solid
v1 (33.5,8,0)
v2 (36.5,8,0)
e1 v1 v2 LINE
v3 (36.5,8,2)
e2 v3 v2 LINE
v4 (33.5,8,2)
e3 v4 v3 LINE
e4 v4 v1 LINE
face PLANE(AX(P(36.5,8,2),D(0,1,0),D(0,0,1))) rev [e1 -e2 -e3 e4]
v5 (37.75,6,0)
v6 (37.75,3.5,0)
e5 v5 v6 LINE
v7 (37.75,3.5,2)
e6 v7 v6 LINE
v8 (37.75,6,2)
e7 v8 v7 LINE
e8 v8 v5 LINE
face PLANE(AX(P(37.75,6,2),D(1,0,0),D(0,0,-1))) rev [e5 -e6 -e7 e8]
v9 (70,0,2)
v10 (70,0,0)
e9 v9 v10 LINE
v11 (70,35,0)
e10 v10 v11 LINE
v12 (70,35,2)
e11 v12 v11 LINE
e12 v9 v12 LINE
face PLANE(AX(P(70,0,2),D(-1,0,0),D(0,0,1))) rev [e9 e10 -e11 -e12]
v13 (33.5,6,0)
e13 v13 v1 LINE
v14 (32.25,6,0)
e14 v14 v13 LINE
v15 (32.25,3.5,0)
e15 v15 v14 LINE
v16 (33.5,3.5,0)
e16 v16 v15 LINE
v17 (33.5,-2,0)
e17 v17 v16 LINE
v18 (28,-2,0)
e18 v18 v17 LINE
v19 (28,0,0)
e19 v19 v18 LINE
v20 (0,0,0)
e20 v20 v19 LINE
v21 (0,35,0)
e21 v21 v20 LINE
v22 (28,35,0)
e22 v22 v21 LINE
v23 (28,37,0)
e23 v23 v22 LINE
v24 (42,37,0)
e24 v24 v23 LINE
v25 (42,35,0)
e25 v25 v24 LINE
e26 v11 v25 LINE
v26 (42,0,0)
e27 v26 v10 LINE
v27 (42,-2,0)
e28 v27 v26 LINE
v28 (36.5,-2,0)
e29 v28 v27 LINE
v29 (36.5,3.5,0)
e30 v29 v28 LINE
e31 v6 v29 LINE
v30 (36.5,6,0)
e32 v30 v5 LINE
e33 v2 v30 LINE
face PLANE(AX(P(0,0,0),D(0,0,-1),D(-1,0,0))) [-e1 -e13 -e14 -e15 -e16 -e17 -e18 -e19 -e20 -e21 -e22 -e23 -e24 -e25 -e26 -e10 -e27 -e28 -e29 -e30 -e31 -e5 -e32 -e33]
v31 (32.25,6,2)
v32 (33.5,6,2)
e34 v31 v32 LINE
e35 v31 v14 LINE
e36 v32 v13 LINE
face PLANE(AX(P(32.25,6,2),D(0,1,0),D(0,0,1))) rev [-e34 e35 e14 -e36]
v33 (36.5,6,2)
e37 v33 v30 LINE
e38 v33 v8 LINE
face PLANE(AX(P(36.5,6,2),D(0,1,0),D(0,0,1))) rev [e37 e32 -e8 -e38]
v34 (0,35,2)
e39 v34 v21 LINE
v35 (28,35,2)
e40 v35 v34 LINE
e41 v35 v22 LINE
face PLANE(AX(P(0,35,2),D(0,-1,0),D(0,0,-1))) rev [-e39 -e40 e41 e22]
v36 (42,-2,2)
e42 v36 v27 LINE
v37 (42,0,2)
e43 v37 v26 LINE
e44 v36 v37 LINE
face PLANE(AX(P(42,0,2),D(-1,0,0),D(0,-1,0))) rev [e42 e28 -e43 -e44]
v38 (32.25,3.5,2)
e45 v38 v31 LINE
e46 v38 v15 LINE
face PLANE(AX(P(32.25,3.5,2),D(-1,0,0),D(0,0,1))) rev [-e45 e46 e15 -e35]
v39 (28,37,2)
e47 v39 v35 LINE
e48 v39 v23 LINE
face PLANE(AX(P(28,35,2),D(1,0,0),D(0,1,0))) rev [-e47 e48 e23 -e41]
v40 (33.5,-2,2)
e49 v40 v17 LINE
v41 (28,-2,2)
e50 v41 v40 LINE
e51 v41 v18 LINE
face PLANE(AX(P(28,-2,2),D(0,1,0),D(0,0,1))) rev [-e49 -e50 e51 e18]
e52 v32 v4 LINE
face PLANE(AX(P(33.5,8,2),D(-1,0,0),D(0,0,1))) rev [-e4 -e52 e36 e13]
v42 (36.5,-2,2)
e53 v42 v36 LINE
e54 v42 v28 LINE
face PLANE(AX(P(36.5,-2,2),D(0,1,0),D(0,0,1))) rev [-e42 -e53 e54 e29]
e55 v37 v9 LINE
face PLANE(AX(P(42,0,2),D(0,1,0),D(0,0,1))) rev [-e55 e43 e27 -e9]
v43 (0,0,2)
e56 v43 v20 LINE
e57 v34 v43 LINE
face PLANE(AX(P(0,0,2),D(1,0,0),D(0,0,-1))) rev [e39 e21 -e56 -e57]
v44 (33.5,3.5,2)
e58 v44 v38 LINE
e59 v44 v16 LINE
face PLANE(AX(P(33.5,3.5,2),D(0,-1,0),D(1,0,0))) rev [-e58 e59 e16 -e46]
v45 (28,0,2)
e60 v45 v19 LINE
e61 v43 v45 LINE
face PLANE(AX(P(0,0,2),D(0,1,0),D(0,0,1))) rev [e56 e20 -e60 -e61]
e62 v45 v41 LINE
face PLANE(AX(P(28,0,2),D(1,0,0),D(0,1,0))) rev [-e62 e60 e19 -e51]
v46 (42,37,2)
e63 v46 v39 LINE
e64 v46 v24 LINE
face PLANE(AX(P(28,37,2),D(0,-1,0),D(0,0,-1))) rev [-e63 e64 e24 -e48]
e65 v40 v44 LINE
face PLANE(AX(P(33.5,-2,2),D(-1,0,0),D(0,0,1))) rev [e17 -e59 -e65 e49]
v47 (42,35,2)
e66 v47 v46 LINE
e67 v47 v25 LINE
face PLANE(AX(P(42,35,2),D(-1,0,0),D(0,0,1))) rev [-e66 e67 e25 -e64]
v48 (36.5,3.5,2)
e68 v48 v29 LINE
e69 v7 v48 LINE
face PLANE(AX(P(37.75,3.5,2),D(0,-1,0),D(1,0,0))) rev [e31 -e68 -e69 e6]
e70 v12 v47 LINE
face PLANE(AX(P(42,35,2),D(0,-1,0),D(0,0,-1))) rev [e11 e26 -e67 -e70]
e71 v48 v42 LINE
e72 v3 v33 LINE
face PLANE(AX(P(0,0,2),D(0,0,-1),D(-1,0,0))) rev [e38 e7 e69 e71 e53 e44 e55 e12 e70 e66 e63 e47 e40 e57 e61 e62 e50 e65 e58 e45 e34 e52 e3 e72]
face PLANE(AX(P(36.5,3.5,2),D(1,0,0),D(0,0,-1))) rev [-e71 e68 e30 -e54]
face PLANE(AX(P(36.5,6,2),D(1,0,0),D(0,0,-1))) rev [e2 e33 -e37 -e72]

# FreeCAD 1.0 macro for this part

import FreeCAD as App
import Part
import Sketcher

V = App.Vector
Q = App.Units.Quantity


def add_polygon(sketch, points):
    """Adds a closed chain of lines whose ends are joined by coincident constraints."""
    first, n = sketch.GeometryCount, len(points)
    for a, b in zip(points, points[1:] + points[:1]):
        sketch.addGeometry(Part.LineSegment(App.Vector(*a, 0), App.Vector(*b, 0)), False)
    for i in range(n):
        sketch.addConstraint(Sketcher.Constraint("Coincident", first + i, 2, first + (i + 1) % n, 1))

doc = App.newDocument("Part")
body = doc.addObject("PartDesign::Body", "Body")

# Sketch on XY plane
sketch1 = body.newObject("Sketcher::SketchObject", "Sketch")
sketch1.AttachmentSupport = (doc.getObject("XY_Plane"), [""])
sketch1.MapMode = "FlatFace"
add_polygon(sketch1, [(70, 35), (42, 35), (42, 37), (28, 37), (28, 35), (0, 35), (0, 0), (28, 0), (28, -2), (33.5, -2), (33.5, 3.5), (32.2, 3.5), (32.2, 6), (33.5, 6), (33.5, 8), (36.5, 8), (36.5, 6), (37.8, 6), (37.8, 3.5), (36.5, 3.5), (36.5, -2), (42, -2), (42, 0), (70, 0)])  # lines 0-23
sketch1.addConstraint([
    Sketcher.Constraint("Horizontal", 0),
    Sketcher.Constraint("Vertical", 1),
    Sketcher.Constraint("Horizontal", 2),
    Sketcher.Constraint("Vertical", 3),
    Sketcher.Constraint("Horizontal", 4),
    Sketcher.Constraint("Vertical", 5),
    Sketcher.Constraint("Horizontal", 6),
    Sketcher.Constraint("Vertical", 7),
    Sketcher.Constraint("Horizontal", 8),
    Sketcher.Constraint("Vertical", 9),
    Sketcher.Constraint("Horizontal", 10),
    Sketcher.Constraint("Vertical", 11),
    Sketcher.Constraint("Horizontal", 12),
    Sketcher.Constraint("Vertical", 13),
    Sketcher.Constraint("Horizontal", 14),
    Sketcher.Constraint("Vertical", 15),
    Sketcher.Constraint("Horizontal", 16),
    Sketcher.Constraint("Vertical", 17),
    Sketcher.Constraint("Horizontal", 18),
    Sketcher.Constraint("Vertical", 19),
    Sketcher.Constraint("Horizontal", 20),
    Sketcher.Constraint("Vertical", 21),
    Sketcher.Constraint("Horizontal", 22),
    Sketcher.Constraint("Vertical", 23),
    Sketcher.Constraint("Coincident", 5, 2, -1, 1),
    Sketcher.Constraint("PointOnObject", 21, 2, -1),
    Sketcher.Constraint("Horizontal", 0, 2, 3, 2),
    Sketcher.Constraint("Horizontal", 12, 2, 15, 2),
    Sketcher.Constraint("Horizontal", 10, 2, 17, 2),
    Sketcher.Constraint("Horizontal", 8, 2, 19, 2),
    Sketcher.Constraint("Vertical", 3, 2, 6, 2),
    Sketcher.Constraint("Vertical", 9, 2, 12, 2),
    Sketcher.Constraint("Vertical", 15, 2, 18, 2),
    Sketcher.Constraint("Vertical", 1, 2, 20, 2),
    Sketcher.Constraint("Equal", 0, 4),
    Sketcher.Constraint("Equal", 12, 16),
    Sketcher.Constraint("Equal", 8, 20),
    Sketcher.Constraint("Equal", 3, 7),
    Sketcher.Constraint("Equal", 20, 9),
    Sketcher.Constraint("Equal", 7, 13),
    Sketcher.Constraint("DistanceX", 0, 2, 0, 1, Q("28 mm")),
    Sketcher.Constraint("DistanceX", 2, 2, 2, 1, Q("14 mm")),
    Sketcher.Constraint("DistanceX", 14, 1, 14, 2, Q("3 mm")),
    Sketcher.Constraint("DistanceY", 1, 1, 1, 2, Q("2 mm")),
    Sketcher.Constraint("DistanceY", 5, 2, 5, 1, Q("35 mm")),
    Sketcher.Constraint("DistanceY", 11, 1, 11, 2, Q("2.5 mm")),
    Sketcher.Constraint("DistanceX", 10, 2, 10, 1, Q("1.25 mm")),
])
pad1 = body.newObject("PartDesign::Pad", "Pad")
pad1.Profile = sketch1
pad1.Length = 2

doc.recompute()
